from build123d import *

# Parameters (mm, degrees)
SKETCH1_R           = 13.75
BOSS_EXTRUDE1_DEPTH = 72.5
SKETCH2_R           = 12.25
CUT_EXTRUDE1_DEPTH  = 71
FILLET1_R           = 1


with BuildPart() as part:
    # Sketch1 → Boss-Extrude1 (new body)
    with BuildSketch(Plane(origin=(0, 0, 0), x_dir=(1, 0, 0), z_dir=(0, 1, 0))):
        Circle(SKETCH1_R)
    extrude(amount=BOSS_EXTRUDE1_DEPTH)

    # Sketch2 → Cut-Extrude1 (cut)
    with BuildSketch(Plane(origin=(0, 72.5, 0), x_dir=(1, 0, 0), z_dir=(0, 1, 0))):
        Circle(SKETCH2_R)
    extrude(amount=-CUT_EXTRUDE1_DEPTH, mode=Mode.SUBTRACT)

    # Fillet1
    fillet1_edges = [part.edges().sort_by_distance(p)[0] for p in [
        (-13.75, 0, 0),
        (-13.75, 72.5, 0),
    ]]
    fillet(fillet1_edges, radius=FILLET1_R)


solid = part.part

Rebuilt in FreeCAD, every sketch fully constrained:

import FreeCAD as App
import Part
import Sketcher

V = App.Vector


def edges_at(feature, points):
    """Names of the edges that pass closest to the given points."""
    edges = feature.Shape.Edges
    near = lambda p: min(range(len(edges)), key=lambda i: edges[i].distToShape(Part.Vertex(*p))[0])
    return sorted({f"Edge{near(p) + 1}" for p in points})

doc = App.newDocument("Part")
body = doc.addObject("PartDesign::Body", "Body")

# Sketch on XZ plane
sketch1 = body.newObject("Sketcher::SketchObject", "Sketch")
sketch1.AttachmentSupport = (doc.getObject("XZ_Plane"), [""])
sketch1.MapMode = "FlatFace"
sketch1.addGeometry(Part.Circle(V(0, 0, 0), V(0, 0, 1), 14), False)
sketch1.addConstraint([
    Sketcher.Constraint("Coincident", 0, 3, -1, 1),
    Sketcher.Constraint("Diameter", 0, 27.5),
])
pad1 = body.newObject("PartDesign::Pad", "Pad")
pad1.Profile = sketch1
pad1.Length = 72.5
pad1.Reversed = True

# Sketch on XZ plane
sketch2 = body.newObject("Sketcher::SketchObject", "Sketch001")
sketch2.AttachmentSupport = (doc.getObject("XZ_Plane"), [""])
sketch2.MapMode = "FlatFace"
sketch2.AttachmentOffset = App.Placement(V(0, 0, -72.5), App.Rotation())
sketch2.addGeometry(Part.Circle(V(0, 0, 0), V(0, 0, 1), 12), False)
sketch2.addConstraint([
    Sketcher.Constraint("Coincident", 0, 3, -1, 1),
    Sketcher.Constraint("Diameter", 0, 24.5),
])
pocket1 = body.newObject("PartDesign::Pocket", "Pocket")
pocket1.Profile = sketch2
pocket1.Length = 71
pocket1.Reversed = True
doc.recompute()

fillet = body.newObject("PartDesign::Fillet", "Fillet")
fillet.Base = (pocket1, edges_at(pocket1, [(-13.75, 0, 0), (-13.75, 72.5, 0)]))
fillet.Radius = 1

doc.recompute()
